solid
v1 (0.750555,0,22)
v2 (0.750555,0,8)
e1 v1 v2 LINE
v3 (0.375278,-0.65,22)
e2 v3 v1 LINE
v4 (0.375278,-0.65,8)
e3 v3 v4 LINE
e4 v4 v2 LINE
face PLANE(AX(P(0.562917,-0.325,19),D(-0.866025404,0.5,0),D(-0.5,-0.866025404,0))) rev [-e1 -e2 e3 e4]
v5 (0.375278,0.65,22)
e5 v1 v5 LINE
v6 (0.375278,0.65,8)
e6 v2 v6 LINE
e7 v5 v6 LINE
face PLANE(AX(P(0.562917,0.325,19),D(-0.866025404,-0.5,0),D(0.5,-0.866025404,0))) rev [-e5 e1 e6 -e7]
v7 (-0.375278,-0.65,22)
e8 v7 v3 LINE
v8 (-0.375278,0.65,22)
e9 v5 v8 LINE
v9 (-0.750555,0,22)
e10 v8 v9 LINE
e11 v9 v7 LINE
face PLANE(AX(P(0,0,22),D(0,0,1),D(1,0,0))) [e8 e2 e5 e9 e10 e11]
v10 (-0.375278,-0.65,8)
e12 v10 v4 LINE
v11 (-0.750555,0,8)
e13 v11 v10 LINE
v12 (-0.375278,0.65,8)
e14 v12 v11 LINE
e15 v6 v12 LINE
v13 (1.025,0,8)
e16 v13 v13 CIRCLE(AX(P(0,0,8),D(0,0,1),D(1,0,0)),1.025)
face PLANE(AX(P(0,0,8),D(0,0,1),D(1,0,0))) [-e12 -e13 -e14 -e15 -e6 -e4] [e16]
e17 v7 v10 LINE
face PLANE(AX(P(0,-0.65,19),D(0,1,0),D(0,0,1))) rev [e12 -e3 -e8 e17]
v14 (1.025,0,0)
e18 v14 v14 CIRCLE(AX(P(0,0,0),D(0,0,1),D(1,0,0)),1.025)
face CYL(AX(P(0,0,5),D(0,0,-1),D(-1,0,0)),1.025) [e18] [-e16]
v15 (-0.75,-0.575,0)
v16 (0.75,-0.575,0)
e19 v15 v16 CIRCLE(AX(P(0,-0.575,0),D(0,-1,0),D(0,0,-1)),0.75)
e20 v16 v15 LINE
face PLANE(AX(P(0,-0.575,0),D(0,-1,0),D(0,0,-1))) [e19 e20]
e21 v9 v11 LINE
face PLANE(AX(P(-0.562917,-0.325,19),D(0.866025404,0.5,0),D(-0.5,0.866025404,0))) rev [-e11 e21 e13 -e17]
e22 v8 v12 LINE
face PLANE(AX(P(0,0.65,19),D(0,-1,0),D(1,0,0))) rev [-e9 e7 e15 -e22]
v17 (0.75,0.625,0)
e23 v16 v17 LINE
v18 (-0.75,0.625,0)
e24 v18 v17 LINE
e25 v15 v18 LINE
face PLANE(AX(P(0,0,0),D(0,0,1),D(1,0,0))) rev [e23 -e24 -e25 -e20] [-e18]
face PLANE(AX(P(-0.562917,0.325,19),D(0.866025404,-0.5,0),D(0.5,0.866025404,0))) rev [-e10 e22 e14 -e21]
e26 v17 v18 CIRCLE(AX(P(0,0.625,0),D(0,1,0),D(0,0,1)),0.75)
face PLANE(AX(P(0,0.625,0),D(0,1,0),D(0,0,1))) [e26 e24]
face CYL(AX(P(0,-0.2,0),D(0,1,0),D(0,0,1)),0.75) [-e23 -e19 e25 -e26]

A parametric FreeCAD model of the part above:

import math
import FreeCAD as App
import Part
import Sketcher
Q = App.Units.Quantity

doc = App.newDocument("Part")
body = doc.addObject("PartDesign::Body", "Body")

# Sketch on XY plane
sketch1 = doc.addObject("Sketcher::SketchObject", "Sketch")
body.addObject(sketch1)
sketch1.AttachmentSupport = (doc.XY_Plane, [""])
sketch1.MapMode = "FlatFace"
sketch1.addGeometry(Part.Circle(App.Vector(0, 0, 0), App.Vector(0, 0, 1), 1), False)
sketch1.addConstraint(Sketcher.Constraint("Coincident", 0, 3, -1, 1))
sketch1.addConstraint(Sketcher.Constraint("Diameter", 0, Q("2.05 mm")))
pad1 = doc.addObject("PartDesign::Pad", "Pad")
body.addObject(pad1)
pad1.Profile = sketch1
pad1.Length = 5

# Sketch on XZ plane
sketch2 = doc.addObject("Sketcher::SketchObject", "Sketch001")
body.addObject(sketch2)
sketch2.AttachmentSupport = (doc.XZ_Plane, [""])
sketch2.MapMode = "FlatFace"
sketch2.addGeometry(Part.LineSegment(App.Vector(-0.8, 0, 0), App.Vector(0.8, 0, 0)), False)
sketch2.addGeometry(Part.ArcOfCircle(Part.Circle(App.Vector(0, 0, 0), App.Vector(0, 0, 1), 0.8), math.radians(180), math.radians(360)), False)
sketch2.addConstraint(Sketcher.Constraint("Coincident", 0, 1, 1, 1))
sketch2.addConstraint(Sketcher.Constraint("Coincident", 1, 2, 0, 2))
sketch2.addConstraint(Sketcher.Constraint("Horizontal", 0))
sketch2.addConstraint(Sketcher.Constraint("Coincident", 1, 3, -1, 1))
sketch2.addConstraint(Sketcher.Constraint("PointOnObject", 0, 1, -1))
sketch2.addConstraint(Sketcher.Constraint("Radius", 1, Q("0.75 mm")))
pad2 = doc.addObject("PartDesign::Pad", "Pad001")
body.addObject(pad2)
pad2.Profile = sketch2
pad2.Type = "TwoLengths"
pad2.Length = 0.25
pad2.Length2 = 0.2
pad2.Reversed = True

# Sketch on XZ plane
sketch3 = doc.addObject("Sketcher::SketchObject", "Sketch002")
body.addObject(sketch3)
sketch3.AttachmentSupport = (doc.XZ_Plane, [""])
sketch3.MapMode = "FlatFace"
sketch3.AttachmentOffset = App.Placement(App.Vector(0, 0, -0.25), App.Rotation())
sketch3.addGeometry(Part.LineSegment(App.Vector(-0.8, 0, 0), App.Vector(0.8, 0, 0)), False)
sketch3.addGeometry(Part.ArcOfCircle(Part.Circle(App.Vector(0, 0, 0), App.Vector(0, 0, 1), 0.8), math.radians(180), math.radians(360)), False)
sketch3.addConstraint(Sketcher.Constraint("Coincident", 0, 1, 1, 1))
sketch3.addConstraint(Sketcher.Constraint("Coincident", 1, 2, 0, 2))
sketch3.addConstraint(Sketcher.Constraint("Horizontal", 0))
sketch3.addConstraint(Sketcher.Constraint("Coincident", 1, 3, -1, 1))
sketch3.addConstraint(Sketcher.Constraint("PointOnObject", 0, 1, -1))
sketch3.addConstraint(Sketcher.Constraint("Radius", 1, Q("0.75 mm")))
pad3 = doc.addObject("PartDesign::Pad", "Pad002")
body.addObject(pad3)
pad3.Profile = sketch3
pad3.Length = 0.375
pad3.Reversed = True

# Sketch on XZ plane
sketch4 = doc.addObject("Sketcher::SketchObject", "Sketch003")
body.addObject(sketch4)
sketch4.AttachmentSupport = (doc.XZ_Plane, [""])
sketch4.MapMode = "FlatFace"
sketch4.AttachmentOffset = App.Placement(App.Vector(0, 0, 0.575), App.Rotation())
sketch4.addGeometry(Part.LineSegment(App.Vector(0.8, 0, 0), App.Vector(-0.8, 0, 0)), False)
sketch4.addGeometry(Part.ArcOfCircle(Part.Circle(App.Vector(0, 0, 0), App.Vector(0, 0, 1), 0.8), math.radians(180), math.radians(360)), False)
sketch4.addConstraint(Sketcher.Constraint("Coincident", 0, 1, 1, 2))
sketch4.addConstraint(Sketcher.Constraint("Coincident", 1, 1, 0, 2))
sketch4.addConstraint(Sketcher.Constraint("Horizontal", 0))
sketch4.addConstraint(Sketcher.Constraint("Coincident", 1, 3, -1, 1))
sketch4.addConstraint(Sketcher.Constraint("PointOnObject", 0, 1, -1))
sketch4.addConstraint(Sketcher.Constraint("Radius", 1, Q("0.75 mm")))
pad4 = doc.addObject("PartDesign::Pad", "Pad003")
body.addObject(pad4)
pad4.Profile = sketch4
pad4.Length = 0.375
pad4.Reversed = True

# Sketch on XY plane
sketch5 = doc.addObject("Sketcher::SketchObject", "Sketch004")
body.addObject(sketch5)
sketch5.AttachmentSupport = (doc.XY_Plane, [""])
sketch5.MapMode = "FlatFace"
sketch5.AttachmentOffset = App.Placement(App.Vector(0, 0, 5), App.Rotation())
sketch5.addGeometry(Part.LineSegment(App.Vector(0.8, 0, 0), App.Vector(0.4, 0.7, 0)), False)
sketch5.addGeometry(Part.LineSegment(App.Vector(0.4, 0.7, 0), App.Vector(-0.4, 0.7, 0)), False)
sketch5.addGeometry(Part.LineSegment(App.Vector(-0.4, 0.7, 0), App.Vector(-0.8, 0, 0)), False)
sketch5.addGeometry(Part.LineSegment(App.Vector(-0.8, 0, 0), App.Vector(-0.4, -0.7, 0)), False)
sketch5.addGeometry(Part.LineSegment(App.Vector(-0.4, -0.7, 0), App.Vector(0.4, -0.7, 0)), False)
sketch5.addGeometry(Part.LineSegment(App.Vector(0.4, -0.7, 0), App.Vector(0.8, 0, 0)), False)
sketch5.addConstraint(Sketcher.Constraint("Coincident", 0, 2, 1, 1))
sketch5.addConstraint(Sketcher.Constraint("Coincident", 1, 2, 2, 1))
sketch5.addConstraint(Sketcher.Constraint("Coincident", 2, 2, 3, 1))
sketch5.addConstraint(Sketcher.Constraint("Coincident", 3, 2, 4, 1))
sketch5.addConstraint(Sketcher.Constraint("Coincident", 4, 2, 5, 1))
sketch5.addConstraint(Sketcher.Constraint("Coincident", 5, 2, 0, 1))
sketch5.addConstraint(Sketcher.Constraint("Horizontal", 1))
sketch5.addConstraint(Sketcher.Constraint("Horizontal", 4))
sketch5.addConstraint(Sketcher.Constraint("Symmetric", 0, 2, 3, 2, -1, 1))
sketch5.addConstraint(Sketcher.Constraint("Symmetric", 2, 2, 5, 2, -1, 1))
sketch5.addConstraint(Sketcher.Constraint("PointOnObject", 2, 2, -1))
sketch5.addConstraint(Sketcher.Constraint("Parallel", 2, 5))
sketch5.addConstraint(Sketcher.Constraint("Vertical", 1, 2, 3, 2))
sketch5.addConstraint(Sketcher.Constraint("Angle", 0, Q("120 deg")))
sketch5.addConstraint(Sketcher.Constraint("DistanceY", 3, 2, 1, 2, Q("1.3 mm")))
sketch5.addConstraint(Sketcher.Constraint("DistanceX", 1, 2, 1, 1, Q("0.750555 mm")))
pad5 = doc.addObject("PartDesign::Pad", "Pad004")
body.addObject(pad5)
pad5.Profile = sketch5
pad5.Length = 14

# Sketch on XY plane
sketch6 = doc.addObject("Sketcher::SketchObject", "Sketch005")
body.addObject(sketch6)
sketch6.AttachmentSupport = (doc.XY_Plane, [""])
sketch6.MapMode = "FlatFace"
sketch6.AttachmentOffset = App.Placement(App.Vector(0, 0, 5), App.Rotation())
sketch6.addGeometry(Part.Circle(App.Vector(0, 0, 0), App.Vector(0, 0, 1), 1), False)
sketch6.addConstraint(Sketcher.Constraint("Coincident", 0, 3, -1, 1))
sketch6.addConstraint(Sketcher.Constraint("Diameter", 0, Q("2.05 mm")))
pad6 = doc.addObject("PartDesign::Pad", "Pad005")
body.addObject(pad6)
pad6.Profile = sketch6
pad6.Length = 3

# Sketch on XY plane
sketch7 = doc.addObject("Sketcher::SketchObject", "Sketch006")
body.addObject(sketch7)
sketch7.AttachmentSupport = (doc.XY_Plane, [""])
sketch7.MapMode = "FlatFace"
sketch7.AttachmentOffset = App.Placement(App.Vector(0, 0, 19), App.Rotation())
sketch7.addGeometry(Part.LineSegment(App.Vector(0.8, 0, 0), App.Vector(0.4, 0.7, 0)), False)
sketch7.addGeometry(Part.LineSegment(App.Vector(0.4, 0.7, 0), App.Vector(-0.4, 0.7, 0)), False)
sketch7.addGeometry(Part.LineSegment(App.Vector(-0.4, 0.7, 0), App.Vector(-0.8, 0, 0)), False)
sketch7.addGeometry(Part.LineSegment(App.Vector(-0.8, 0, 0), App.Vector(-0.4, -0.7, 0)), False)
sketch7.addGeometry(Part.LineSegment(App.Vector(-0.4, -0.7, 0), App.Vector(0.4, -0.7, 0)), False)
sketch7.addGeometry(Part.LineSegment(App.Vector(0.4, -0.7, 0), App.Vector(0.8, 0, 0)), False)
sketch7.addConstraint(Sketcher.Constraint("Coincident", 0, 2, 1, 1))
sketch7.addConstraint(Sketcher.Constraint("Coincident", 1, 2, 2, 1))
sketch7.addConstraint(Sketcher.Constraint("Coincident", 2, 2, 3, 1))
sketch7.addConstraint(Sketcher.Constraint("Coincident", 3, 2, 4, 1))
sketch7.addConstraint(Sketcher.Constraint("Coincident", 4, 2, 5, 1))
sketch7.addConstraint(Sketcher.Constraint("Coincident", 5, 2, 0, 1))
sketch7.addConstraint(Sketcher.Constraint("Horizontal", 1))
sketch7.addConstraint(Sketcher.Constraint("Horizontal", 4))
sketch7.addConstraint(Sketcher.Constraint("Symmetric", 0, 2, 3, 2, -1, 1))
sketch7.addConstraint(Sketcher.Constraint("Symmetric", 2, 2, 5, 2, -1, 1))
sketch7.addConstraint(Sketcher.Constraint("PointOnObject", 2, 2, -1))
sketch7.addConstraint(Sketcher.Constraint("Parallel", 2, 5))
sketch7.addConstraint(Sketcher.Constraint("Vertical", 1, 2, 3, 2))
sketch7.addConstraint(Sketcher.Constraint("Angle", 0, Q("120 deg")))
sketch7.addConstraint(Sketcher.Constraint("DistanceY", 3, 2, 1, 2, Q("1.3 mm")))
sketch7.addConstraint(Sketcher.Constraint("DistanceX", 1, 2, 1, 1, Q("0.750555 mm")))
pad7 = doc.addObject("PartDesign::Pad", "Pad006")
body.addObject(pad7)
pad7.Profile = sketch7
pad7.Length = 3

doc.recompute()
